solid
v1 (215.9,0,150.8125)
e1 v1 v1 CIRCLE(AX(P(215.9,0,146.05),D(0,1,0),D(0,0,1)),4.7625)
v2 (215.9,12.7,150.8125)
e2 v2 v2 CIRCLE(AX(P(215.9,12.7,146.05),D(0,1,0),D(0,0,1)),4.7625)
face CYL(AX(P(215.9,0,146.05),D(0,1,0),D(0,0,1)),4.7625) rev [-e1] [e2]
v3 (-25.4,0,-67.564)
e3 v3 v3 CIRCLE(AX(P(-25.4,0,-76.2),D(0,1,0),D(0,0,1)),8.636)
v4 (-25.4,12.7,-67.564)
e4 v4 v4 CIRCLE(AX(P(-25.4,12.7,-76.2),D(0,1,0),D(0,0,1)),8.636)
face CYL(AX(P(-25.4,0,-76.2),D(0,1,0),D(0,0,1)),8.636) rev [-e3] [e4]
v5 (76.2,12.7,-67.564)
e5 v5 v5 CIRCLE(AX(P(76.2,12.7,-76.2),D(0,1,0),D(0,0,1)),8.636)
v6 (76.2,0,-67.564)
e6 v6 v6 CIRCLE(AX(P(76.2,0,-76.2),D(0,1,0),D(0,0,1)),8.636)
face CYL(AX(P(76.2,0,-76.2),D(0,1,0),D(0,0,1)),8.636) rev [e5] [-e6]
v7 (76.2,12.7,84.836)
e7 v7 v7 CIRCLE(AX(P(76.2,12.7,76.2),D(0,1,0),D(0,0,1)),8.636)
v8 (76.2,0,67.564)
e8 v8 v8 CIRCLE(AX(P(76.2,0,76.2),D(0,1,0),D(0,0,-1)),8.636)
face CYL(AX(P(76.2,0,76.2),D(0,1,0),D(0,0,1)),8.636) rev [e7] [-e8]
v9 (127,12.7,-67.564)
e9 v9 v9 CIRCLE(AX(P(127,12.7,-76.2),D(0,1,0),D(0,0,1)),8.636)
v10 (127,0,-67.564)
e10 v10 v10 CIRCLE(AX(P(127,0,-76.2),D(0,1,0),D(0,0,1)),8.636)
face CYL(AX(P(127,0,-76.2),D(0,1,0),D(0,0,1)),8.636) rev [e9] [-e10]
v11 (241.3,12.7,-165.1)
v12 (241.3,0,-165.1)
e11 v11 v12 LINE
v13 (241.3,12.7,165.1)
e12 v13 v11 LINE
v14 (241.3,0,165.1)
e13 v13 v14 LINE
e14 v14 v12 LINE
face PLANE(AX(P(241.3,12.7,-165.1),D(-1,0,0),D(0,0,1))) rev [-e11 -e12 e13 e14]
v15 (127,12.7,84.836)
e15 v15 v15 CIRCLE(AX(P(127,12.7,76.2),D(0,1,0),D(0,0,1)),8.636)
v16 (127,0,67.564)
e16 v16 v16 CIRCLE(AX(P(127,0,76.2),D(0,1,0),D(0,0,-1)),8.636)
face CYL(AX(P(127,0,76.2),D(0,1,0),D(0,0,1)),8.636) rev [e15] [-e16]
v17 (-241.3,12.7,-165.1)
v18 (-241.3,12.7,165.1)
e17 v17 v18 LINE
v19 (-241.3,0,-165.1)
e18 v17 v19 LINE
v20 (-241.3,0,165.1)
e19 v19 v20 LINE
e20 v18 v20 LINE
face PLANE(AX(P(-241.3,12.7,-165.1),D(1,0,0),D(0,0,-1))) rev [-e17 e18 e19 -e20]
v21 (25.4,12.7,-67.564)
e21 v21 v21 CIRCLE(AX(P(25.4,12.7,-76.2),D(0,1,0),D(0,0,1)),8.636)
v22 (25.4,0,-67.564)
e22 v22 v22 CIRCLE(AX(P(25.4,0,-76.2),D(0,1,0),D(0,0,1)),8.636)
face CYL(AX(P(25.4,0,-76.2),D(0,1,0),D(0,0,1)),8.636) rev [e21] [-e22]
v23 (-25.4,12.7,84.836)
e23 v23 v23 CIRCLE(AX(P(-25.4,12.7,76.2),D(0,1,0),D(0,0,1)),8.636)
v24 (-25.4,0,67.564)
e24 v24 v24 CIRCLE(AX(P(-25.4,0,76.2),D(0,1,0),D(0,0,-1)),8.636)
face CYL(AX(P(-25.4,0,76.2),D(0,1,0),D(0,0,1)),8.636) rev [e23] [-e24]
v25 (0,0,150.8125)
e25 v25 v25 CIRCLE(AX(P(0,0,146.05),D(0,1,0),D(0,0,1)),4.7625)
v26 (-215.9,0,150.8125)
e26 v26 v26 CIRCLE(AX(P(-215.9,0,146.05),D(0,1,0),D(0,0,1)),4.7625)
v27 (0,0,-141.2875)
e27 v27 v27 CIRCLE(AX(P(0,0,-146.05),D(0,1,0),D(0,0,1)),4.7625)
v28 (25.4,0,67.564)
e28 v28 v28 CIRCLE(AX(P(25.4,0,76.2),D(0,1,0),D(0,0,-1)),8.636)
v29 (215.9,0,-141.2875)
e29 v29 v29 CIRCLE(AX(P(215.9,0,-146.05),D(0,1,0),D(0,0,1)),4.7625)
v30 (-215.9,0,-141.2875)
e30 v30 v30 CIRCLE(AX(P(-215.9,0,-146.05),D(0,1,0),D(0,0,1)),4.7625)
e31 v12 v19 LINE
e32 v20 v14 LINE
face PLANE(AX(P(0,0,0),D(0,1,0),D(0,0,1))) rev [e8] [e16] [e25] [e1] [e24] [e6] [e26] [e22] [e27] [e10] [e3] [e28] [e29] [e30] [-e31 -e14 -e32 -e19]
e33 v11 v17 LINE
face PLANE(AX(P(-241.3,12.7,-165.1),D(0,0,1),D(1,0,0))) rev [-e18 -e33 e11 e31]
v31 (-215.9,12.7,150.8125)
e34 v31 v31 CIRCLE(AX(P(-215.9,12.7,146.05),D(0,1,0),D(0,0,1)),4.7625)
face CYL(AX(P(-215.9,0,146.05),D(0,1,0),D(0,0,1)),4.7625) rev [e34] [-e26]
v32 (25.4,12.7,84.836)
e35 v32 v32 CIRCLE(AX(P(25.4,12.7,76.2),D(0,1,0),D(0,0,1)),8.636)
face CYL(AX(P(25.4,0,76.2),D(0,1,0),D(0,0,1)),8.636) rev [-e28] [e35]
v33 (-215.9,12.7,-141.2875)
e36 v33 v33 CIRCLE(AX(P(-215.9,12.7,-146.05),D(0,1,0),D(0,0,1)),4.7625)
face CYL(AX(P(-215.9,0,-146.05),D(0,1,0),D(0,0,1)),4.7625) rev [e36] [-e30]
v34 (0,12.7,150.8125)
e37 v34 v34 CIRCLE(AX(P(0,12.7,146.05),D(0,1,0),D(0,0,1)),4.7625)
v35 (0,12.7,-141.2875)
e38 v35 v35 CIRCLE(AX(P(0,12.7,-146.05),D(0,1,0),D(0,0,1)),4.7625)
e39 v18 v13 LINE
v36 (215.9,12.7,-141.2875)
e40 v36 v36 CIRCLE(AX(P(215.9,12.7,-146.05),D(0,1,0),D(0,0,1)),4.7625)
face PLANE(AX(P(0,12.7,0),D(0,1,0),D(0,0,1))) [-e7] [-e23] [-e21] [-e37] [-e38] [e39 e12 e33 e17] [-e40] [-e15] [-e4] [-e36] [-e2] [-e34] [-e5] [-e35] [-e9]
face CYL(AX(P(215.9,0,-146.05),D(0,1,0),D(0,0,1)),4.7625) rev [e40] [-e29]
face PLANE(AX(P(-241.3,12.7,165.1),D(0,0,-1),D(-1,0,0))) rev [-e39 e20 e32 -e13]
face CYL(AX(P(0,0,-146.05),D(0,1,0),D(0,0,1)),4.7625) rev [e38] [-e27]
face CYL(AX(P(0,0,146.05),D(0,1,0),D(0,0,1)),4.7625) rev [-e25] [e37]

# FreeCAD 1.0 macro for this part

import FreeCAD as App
import Part
import Sketcher

V = App.Vector
Q = App.Units.Quantity


def add_polygon(sketch, points):
    """Adds a closed chain of lines whose ends are joined by coincident constraints."""
    first, n = sketch.GeometryCount, len(points)
    for a, b in zip(points, points[1:] + points[:1]):
        sketch.addGeometry(Part.LineSegment(App.Vector(*a, 0), App.Vector(*b, 0)), False)
    for i in range(n):
        sketch.addConstraint(Sketcher.Constraint("Coincident", first + i, 2, first + (i + 1) % n, 1))

doc = App.newDocument("Part")
body = doc.addObject("PartDesign::Body", "Body")

# Sketch on XZ plane
sketch1 = body.newObject("Sketcher::SketchObject", "Sketch")
sketch1.AttachmentSupport = (doc.getObject("XZ_Plane"), [""])
sketch1.MapMode = "FlatFace"
add_polygon(sketch1, [(-241, -165), (-241, 165), (241, 165), (241, -165)])  # lines 0-3
sketch1.addConstraint(Sketcher.Constraint("Vertical", 0))
sketch1.addConstraint(Sketcher.Constraint("Horizontal", 1))
sketch1.addConstraint(Sketcher.Constraint("Vertical", 2))
sketch1.addConstraint(Sketcher.Constraint("Horizontal", 3))
sketch1.addConstraint(Sketcher.Constraint("Symmetric", 0, 2, 2, 2, -1, 1))
sketch1.addConstraint(Sketcher.Constraint("DistanceX", 1, 1, 1, 2, Q("19 in")))
sketch1.addConstraint(Sketcher.Constraint("DistanceY", 0, 1, 0, 2, Q("13 in")))
pad1 = body.newObject("PartDesign::Pad", "Pad")
pad1.Profile = sketch1
pad1.Length = Q("0.5 in")
pad1.Reversed = True

# Sketch on XZ plane
sketch2 = body.newObject("Sketcher::SketchObject", "Sketch001")
sketch2.AttachmentSupport = (doc.getObject("XZ_Plane"), [""])
sketch2.MapMode = "FlatFace"
sketch2.AttachmentOffset = App.Placement(V(0, 0, -0.5 * 25.4), App.Rotation())
sketch2.addGeometry(Part.Circle(V(215.9, -146.1, 0), V(0, 0, 1), 4.8), False)
sketch2.addGeometry(Part.Circle(V(-215.9, -146.1, 0), V(0, 0, 1), 4.8), False)
sketch2.addGeometry(Part.Circle(V(215.9, 146.1, 0), V(0, 0, 1), 4.8), False)
sketch2.addGeometry(Part.Circle(V(-215.9, 146.1, 0), V(0, 0, 1), 4.8), False)
sketch2.addGeometry(Part.Circle(V(0, -146.1, 0), V(0, 0, 1), 4.8), False)
sketch2.addGeometry(Part.Circle(V(0, 146.1, 0), V(0, 0, 1), 4.8), False)
sketch2.addConstraint(Sketcher.Constraint("Equal", 0, 1))
sketch2.addConstraint(Sketcher.Constraint("Equal", 1, 2))
sketch2.addConstraint(Sketcher.Constraint("Equal", 2, 3))
sketch2.addConstraint(Sketcher.Constraint("Equal", 3, 4))
sketch2.addConstraint(Sketcher.Constraint("Equal", 4, 5))
sketch2.addConstraint(Sketcher.Constraint("Symmetric", 1, 3, 2, 3, -1, 1))
sketch2.addConstraint(Sketcher.Constraint("Symmetric", 0, 3, 3, 3, -1, 1))
sketch2.addConstraint(Sketcher.Constraint("Symmetric", 4, 3, 5, 3, -1, 1))
sketch2.addConstraint(Sketcher.Constraint("Symmetric", 0, 3, 1, 3, -2))
sketch2.addConstraint(Sketcher.Constraint("PointOnObject", 4, 3, -2))
sketch2.addConstraint(Sketcher.Constraint("Horizontal", 1, 3, 4, 3))
sketch2.addConstraint(Sketcher.Constraint("Diameter", 0, Q("0.375 in")))
sketch2.addConstraint(Sketcher.Constraint("DistanceX", 1, 3, 0, 3, Q("17 in")))
sketch2.addConstraint(Sketcher.Constraint("DistanceY", 0, 3, 2, 3, Q("11.5 in")))
pocket1 = body.newObject("PartDesign::Pocket", "Pocket")
pocket1.Profile = sketch2
pocket1.Type = "ThroughAll"
pocket1.Midplane = True

# Sketch on XZ plane
sketch3 = body.newObject("Sketcher::SketchObject", "Sketch002")
sketch3.AttachmentSupport = (doc.getObject("XZ_Plane"), [""])
sketch3.MapMode = "FlatFace"
sketch3.AttachmentOffset = App.Placement(V(0, 0, -0.5 * 25.4), App.Rotation())
sketch3.addGeometry(Part.Circle(V(-25, -76, 0), V(0, 0, 1), 9), False)
sketch3.addGeometry(Part.Circle(V(25, -76, 0), V(0, 0, 1), 9), False)
sketch3.addGeometry(Part.Circle(V(76, -76, 0), V(0, 0, 1), 9), False)
sketch3.addGeometry(Part.Circle(V(127, -76, 0), V(0, 0, 1), 9), False)
sketch3.addGeometry(Part.Circle(V(127, 76, 0), V(0, 0, 1), 9), False)
sketch3.addGeometry(Part.Circle(V(76, 76, 0), V(0, 0, 1), 9), False)
sketch3.addGeometry(Part.Circle(V(25, 76, 0), V(0, 0, 1), 9), False)
sketch3.addGeometry(Part.Circle(V(-25, 76, 0), V(0, 0, 1), 9), False)
sketch3.addConstraint(Sketcher.Constraint("Equal", 0, 1))
sketch3.addConstraint(Sketcher.Constraint("Equal", 1, 2))
sketch3.addConstraint(Sketcher.Constraint("Equal", 2, 3))
sketch3.addConstraint(Sketcher.Constraint("Equal", 3, 4))
sketch3.addConstraint(Sketcher.Constraint("Equal", 4, 5))
sketch3.addConstraint(Sketcher.Constraint("Equal", 5, 6))
sketch3.addConstraint(Sketcher.Constraint("Equal", 6, 7))
sketch3.addConstraint(Sketcher.Constraint("Symmetric", 0, 3, 6, 3, -1, 1))
sketch3.addConstraint(Sketcher.Constraint("Symmetric", 1, 3, 7, 3, -1, 1))
sketch3.addConstraint(Sketcher.Constraint("Symmetric", 0, 3, 1, 3, -2))
sketch3.addConstraint(Sketcher.Constraint("Symmetric", 3, 3, 4, 3, -1))
sketch3.addConstraint(Sketcher.Constraint("Symmetric", 2, 3, 5, 3, -1))
sketch3.addConstraint(Sketcher.Constraint("Horizontal", 1, 3, 2, 3))
sketch3.addConstraint(Sketcher.Constraint("Horizontal", 2, 3, 3, 3))
sketch3.addConstraint(Sketcher.Constraint("Diameter", 0, Q("0.68 in")))
sketch3.addConstraint(Sketcher.Constraint("DistanceX", 0, 3, -1, 1, Q("1 in")))
sketch3.addConstraint(Sketcher.Constraint("DistanceY", 0, 3, -1, 1, Q("3 in")))
sketch3.addConstraint(Sketcher.Constraint("DistanceX", -1, 1, 2, 3, Q("3 in")))
sketch3.addConstraint(Sketcher.Constraint("DistanceX", -1, 1, 3, 3, Q("5 in")))
pocket2 = body.newObject("PartDesign::Pocket", "Pocket001")
pocket2.Profile = sketch3
pocket2.Type = "ThroughAll"
pocket2.Midplane = True

doc.recompute()
